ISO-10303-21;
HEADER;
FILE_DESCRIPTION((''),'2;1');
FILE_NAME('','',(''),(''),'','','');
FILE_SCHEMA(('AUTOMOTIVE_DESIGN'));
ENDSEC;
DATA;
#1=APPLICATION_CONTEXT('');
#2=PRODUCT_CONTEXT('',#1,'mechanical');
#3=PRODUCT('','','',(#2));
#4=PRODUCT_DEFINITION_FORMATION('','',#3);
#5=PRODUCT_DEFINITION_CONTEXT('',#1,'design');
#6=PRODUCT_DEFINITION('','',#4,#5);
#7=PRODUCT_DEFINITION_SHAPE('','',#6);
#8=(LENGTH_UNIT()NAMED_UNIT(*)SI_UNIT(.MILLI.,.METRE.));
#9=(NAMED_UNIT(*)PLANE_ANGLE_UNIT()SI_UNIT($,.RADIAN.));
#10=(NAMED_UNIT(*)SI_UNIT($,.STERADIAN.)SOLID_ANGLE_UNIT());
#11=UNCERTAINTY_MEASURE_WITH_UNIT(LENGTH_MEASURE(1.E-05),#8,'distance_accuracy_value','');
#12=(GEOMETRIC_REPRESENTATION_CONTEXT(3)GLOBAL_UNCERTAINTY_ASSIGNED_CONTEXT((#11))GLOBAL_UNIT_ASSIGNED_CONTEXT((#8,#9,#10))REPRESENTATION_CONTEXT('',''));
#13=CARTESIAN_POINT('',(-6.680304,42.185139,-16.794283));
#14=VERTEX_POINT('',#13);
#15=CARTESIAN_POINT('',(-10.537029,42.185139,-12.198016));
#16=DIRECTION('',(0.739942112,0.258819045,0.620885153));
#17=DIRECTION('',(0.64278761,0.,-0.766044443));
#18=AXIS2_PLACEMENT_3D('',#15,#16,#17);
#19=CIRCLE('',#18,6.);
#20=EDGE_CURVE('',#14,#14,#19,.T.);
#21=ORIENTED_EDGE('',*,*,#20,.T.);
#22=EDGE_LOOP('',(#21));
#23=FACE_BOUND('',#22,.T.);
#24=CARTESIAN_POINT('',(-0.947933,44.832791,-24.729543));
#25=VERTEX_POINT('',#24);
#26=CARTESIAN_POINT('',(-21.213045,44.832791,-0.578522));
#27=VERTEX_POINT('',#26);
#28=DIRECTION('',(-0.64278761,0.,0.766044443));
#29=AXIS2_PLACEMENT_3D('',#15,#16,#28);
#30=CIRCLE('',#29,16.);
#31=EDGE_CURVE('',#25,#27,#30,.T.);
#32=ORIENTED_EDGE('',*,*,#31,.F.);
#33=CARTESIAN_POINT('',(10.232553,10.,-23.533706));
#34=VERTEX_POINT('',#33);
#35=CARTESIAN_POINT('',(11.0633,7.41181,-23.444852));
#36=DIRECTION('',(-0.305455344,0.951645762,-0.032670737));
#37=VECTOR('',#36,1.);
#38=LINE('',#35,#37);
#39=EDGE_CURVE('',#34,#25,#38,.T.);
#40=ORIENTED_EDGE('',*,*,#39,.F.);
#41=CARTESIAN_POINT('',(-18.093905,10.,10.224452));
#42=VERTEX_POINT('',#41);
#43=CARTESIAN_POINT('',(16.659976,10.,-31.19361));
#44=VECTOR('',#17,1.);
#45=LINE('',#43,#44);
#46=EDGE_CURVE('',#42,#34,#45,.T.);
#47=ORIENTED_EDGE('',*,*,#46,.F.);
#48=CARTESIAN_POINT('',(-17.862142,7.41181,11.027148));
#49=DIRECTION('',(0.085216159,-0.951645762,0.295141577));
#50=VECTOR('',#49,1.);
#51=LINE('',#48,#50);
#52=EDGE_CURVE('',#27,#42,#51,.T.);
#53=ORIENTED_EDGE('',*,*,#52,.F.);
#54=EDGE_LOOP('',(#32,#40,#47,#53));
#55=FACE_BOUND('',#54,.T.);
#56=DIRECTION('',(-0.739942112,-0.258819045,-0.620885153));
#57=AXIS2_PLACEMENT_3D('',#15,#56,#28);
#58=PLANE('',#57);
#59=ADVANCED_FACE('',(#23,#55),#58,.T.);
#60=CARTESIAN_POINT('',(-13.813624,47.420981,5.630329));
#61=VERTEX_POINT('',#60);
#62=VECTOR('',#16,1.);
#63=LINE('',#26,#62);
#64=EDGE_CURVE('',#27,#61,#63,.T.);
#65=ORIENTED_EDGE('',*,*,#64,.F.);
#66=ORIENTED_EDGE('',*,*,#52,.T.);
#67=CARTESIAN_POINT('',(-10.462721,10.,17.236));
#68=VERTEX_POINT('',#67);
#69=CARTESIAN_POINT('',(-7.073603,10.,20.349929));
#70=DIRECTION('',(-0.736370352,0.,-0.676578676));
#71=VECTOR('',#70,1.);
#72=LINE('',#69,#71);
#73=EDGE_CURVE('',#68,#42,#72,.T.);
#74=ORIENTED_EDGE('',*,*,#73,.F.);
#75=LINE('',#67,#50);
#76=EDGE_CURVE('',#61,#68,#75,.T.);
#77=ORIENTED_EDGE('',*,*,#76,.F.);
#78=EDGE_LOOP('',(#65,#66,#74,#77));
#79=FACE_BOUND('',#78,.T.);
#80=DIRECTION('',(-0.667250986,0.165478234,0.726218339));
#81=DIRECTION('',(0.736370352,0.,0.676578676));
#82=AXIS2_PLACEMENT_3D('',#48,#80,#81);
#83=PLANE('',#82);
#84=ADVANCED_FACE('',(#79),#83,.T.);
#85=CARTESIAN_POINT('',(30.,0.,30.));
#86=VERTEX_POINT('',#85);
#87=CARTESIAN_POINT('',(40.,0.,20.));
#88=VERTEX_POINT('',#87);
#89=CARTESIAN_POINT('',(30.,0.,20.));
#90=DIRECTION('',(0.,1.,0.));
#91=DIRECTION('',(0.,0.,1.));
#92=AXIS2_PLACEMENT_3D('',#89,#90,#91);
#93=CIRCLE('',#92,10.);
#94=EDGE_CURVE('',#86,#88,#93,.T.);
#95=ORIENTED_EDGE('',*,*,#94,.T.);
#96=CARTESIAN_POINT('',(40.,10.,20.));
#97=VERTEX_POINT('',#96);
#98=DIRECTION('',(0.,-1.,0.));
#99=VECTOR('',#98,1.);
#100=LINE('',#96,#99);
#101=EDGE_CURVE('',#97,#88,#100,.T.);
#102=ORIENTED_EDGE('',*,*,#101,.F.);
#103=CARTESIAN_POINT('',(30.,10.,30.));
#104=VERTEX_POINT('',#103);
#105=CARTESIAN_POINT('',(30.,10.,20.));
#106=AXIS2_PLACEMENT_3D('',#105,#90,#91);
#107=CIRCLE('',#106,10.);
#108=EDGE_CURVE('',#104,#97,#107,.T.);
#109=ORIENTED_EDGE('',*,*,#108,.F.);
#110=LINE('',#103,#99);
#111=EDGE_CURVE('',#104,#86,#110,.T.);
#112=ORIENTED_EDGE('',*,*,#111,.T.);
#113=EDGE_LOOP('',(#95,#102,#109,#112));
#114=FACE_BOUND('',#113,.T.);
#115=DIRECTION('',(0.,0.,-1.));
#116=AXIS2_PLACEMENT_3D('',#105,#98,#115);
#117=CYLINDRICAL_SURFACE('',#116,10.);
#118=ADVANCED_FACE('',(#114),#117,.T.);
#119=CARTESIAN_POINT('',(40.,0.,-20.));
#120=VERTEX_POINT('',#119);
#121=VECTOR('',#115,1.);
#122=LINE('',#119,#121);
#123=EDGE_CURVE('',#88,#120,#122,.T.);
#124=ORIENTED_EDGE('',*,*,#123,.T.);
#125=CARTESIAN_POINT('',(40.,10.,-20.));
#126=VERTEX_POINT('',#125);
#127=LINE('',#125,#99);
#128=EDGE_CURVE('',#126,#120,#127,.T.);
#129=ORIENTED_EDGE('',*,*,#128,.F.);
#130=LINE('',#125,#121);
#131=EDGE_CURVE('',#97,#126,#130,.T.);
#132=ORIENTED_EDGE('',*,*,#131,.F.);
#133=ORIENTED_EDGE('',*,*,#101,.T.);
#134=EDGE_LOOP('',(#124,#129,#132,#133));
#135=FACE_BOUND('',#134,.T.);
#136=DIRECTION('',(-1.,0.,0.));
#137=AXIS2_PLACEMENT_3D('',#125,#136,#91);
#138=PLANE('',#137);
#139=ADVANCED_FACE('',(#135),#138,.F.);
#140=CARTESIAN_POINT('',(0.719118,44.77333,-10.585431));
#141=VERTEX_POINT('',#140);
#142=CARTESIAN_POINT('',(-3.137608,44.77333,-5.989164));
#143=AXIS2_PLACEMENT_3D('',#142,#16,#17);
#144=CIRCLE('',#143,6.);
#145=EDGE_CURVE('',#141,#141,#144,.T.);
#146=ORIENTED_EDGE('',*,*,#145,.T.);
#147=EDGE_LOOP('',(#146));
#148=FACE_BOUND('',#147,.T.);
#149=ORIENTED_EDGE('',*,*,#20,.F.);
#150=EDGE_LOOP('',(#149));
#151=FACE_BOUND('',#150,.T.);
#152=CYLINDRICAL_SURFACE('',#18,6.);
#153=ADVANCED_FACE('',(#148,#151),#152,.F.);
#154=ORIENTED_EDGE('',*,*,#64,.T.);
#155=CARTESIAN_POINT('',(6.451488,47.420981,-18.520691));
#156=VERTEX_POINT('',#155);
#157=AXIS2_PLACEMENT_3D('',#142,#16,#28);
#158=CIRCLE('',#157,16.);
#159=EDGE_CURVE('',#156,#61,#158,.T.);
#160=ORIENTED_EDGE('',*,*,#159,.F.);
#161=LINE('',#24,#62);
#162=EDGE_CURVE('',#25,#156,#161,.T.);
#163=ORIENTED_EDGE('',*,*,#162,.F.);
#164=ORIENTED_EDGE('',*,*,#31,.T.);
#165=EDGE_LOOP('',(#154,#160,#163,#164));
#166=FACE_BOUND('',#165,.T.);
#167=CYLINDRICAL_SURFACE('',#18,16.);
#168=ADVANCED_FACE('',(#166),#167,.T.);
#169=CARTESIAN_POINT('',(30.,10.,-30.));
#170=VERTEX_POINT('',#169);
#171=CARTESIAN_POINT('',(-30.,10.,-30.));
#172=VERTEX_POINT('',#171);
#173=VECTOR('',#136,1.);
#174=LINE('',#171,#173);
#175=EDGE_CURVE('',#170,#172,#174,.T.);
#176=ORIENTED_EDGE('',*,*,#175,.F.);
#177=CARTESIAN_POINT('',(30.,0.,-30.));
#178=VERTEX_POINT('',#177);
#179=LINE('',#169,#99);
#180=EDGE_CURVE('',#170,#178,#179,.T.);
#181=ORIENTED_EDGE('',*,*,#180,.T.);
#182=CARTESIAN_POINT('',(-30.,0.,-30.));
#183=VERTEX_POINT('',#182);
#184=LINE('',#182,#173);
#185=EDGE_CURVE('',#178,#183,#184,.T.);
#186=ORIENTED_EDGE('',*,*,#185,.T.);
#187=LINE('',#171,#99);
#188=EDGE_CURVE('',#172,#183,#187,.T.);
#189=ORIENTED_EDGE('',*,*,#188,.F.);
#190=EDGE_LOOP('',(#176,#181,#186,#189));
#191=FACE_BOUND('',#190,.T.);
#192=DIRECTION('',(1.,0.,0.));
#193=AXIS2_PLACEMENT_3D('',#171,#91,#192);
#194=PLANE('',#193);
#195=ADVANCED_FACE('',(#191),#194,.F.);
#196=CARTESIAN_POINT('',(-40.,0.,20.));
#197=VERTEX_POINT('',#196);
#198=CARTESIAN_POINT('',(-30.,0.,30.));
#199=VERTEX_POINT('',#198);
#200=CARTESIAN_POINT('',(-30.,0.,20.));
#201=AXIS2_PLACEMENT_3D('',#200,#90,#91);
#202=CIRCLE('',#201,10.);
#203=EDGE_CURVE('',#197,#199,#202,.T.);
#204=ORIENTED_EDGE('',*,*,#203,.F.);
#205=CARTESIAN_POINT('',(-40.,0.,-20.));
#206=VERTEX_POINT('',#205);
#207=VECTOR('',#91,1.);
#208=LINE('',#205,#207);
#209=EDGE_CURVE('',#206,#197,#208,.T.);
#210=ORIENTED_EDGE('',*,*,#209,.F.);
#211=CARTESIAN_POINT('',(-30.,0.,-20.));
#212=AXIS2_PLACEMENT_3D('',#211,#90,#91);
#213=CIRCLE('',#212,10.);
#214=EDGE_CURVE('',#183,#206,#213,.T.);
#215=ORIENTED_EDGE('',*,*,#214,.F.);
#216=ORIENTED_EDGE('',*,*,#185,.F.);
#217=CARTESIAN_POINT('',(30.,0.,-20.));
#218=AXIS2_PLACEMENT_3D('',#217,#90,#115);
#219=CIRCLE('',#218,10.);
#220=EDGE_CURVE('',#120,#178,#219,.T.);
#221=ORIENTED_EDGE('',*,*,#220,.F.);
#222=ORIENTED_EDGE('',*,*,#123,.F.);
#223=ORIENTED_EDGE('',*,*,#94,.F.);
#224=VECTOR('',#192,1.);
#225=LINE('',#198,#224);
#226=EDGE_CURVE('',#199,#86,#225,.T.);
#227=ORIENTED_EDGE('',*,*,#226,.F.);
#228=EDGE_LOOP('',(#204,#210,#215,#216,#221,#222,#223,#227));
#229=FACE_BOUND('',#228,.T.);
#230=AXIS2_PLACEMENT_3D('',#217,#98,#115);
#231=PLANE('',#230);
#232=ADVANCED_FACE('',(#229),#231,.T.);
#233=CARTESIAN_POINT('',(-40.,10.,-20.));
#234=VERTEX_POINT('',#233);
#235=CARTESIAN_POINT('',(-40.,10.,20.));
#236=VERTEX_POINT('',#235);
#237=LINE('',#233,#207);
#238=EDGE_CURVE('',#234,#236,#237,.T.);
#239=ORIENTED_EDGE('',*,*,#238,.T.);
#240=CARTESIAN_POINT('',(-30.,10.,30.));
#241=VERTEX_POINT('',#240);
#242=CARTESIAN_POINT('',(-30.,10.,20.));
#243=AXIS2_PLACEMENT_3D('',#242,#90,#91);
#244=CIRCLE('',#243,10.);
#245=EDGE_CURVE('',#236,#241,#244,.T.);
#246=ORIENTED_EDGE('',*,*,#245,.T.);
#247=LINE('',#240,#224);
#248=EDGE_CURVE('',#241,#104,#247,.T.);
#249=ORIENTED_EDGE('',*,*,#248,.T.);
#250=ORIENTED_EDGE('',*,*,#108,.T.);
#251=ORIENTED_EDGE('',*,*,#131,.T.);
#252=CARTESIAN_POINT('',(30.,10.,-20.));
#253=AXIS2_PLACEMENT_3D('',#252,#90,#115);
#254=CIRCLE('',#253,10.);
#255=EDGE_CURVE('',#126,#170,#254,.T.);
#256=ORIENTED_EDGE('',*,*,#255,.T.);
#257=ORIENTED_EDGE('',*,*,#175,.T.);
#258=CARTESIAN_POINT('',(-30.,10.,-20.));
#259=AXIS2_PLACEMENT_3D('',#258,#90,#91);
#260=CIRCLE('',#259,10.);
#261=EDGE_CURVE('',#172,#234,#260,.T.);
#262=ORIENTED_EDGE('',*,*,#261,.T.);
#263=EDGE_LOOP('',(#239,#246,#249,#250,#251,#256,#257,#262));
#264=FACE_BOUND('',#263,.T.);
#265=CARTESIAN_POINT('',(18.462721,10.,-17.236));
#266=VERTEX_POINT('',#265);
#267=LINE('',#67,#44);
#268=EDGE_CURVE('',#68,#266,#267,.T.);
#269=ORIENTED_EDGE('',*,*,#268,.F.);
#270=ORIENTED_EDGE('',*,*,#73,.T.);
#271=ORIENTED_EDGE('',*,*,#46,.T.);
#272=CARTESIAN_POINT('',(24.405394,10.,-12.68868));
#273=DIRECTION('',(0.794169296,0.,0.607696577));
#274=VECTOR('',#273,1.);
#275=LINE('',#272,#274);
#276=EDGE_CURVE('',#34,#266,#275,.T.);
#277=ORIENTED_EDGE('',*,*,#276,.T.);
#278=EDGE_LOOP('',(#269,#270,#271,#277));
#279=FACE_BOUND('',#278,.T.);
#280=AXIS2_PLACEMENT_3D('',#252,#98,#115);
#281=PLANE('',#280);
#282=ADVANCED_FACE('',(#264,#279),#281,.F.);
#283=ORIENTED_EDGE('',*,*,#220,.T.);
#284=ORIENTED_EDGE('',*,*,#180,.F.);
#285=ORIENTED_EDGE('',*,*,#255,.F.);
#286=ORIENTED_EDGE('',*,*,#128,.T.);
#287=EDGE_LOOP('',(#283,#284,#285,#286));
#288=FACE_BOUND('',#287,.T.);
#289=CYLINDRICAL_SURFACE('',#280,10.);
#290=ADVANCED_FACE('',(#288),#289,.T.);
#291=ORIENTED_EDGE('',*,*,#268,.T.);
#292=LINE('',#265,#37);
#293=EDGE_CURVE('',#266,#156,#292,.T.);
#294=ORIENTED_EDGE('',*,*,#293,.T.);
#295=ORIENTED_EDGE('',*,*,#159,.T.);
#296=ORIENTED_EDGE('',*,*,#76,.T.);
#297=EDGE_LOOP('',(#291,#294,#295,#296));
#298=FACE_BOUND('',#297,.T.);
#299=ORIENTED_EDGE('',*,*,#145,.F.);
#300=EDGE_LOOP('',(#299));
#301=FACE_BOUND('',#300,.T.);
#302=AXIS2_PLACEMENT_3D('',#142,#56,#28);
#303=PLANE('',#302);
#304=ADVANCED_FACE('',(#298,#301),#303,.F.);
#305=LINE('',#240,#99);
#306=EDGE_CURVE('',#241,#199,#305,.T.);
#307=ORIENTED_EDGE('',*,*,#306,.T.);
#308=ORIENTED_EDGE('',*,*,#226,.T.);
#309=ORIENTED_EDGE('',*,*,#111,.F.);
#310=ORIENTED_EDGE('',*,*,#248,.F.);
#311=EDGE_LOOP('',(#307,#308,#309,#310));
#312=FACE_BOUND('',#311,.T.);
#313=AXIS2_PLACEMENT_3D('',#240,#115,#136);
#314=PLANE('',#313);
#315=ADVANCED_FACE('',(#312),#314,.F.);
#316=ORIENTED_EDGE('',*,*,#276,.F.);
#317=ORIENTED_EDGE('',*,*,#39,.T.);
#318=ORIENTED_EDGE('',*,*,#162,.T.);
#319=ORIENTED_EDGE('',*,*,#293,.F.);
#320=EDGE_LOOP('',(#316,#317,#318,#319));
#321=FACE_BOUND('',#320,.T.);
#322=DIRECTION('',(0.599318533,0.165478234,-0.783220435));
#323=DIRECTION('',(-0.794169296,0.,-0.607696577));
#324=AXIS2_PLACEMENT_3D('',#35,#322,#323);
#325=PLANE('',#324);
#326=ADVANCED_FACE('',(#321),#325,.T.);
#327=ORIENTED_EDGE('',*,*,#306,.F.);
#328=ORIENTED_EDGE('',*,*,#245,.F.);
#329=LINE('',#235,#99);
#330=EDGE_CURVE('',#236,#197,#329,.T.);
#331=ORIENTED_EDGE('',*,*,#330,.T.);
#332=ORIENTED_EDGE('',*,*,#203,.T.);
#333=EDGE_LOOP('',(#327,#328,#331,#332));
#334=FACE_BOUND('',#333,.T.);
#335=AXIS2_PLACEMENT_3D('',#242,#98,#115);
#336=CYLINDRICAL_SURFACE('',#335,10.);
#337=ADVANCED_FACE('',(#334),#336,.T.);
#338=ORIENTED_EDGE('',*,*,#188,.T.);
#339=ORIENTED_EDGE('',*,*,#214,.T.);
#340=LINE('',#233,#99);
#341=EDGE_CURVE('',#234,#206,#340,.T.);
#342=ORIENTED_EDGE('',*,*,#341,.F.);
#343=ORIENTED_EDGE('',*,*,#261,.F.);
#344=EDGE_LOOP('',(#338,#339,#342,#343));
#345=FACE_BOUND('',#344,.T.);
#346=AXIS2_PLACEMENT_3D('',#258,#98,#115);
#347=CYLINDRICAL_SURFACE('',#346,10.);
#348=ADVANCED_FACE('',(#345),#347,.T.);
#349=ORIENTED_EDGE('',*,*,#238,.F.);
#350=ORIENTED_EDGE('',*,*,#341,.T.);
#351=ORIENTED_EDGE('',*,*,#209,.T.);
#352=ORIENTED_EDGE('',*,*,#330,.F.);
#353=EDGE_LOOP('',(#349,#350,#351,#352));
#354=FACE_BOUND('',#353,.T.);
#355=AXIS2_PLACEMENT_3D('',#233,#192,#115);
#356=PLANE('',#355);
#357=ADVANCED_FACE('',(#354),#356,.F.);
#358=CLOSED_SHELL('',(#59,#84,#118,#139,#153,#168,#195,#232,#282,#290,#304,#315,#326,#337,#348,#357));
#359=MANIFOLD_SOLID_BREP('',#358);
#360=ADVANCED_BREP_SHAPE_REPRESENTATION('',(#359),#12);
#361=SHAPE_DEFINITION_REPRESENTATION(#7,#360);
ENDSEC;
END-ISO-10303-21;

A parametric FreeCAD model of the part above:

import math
import FreeCAD as App
import Part
import Sketcher

doc = App.newDocument("Part")
params = doc.addObject("Spreadsheet::Sheet", "Params")
for row, (alias, value) in enumerate([
    ("sketch1_radius", "10 mm"),
    ("sketch1_width", "60 mm"),
    ("sketch1_height", "40 mm"),
    ("pad1_length", "10 mm"),
    ("sketch2_diameter", "12 mm"),
    ("sketch2_radius", "16 mm"),
    ("sketch2_width", "45 mm"),
    ("pad2_length", "10 mm"),
], start=1):
    params.set(f"A{row}", alias)
    params.set(f"B{row}", "=" + value)
    params.setAlias(f"B{row}", alias)

body = doc.addObject("PartDesign::Body", "Body")

sketch1 = body.newObject("Sketcher::SketchObject", "Sketch")
sketch1.AttachmentSupport = (doc.getObject("XZ_Plane"), [""])
sketch1.MapMode = "FlatFace"
sketch1.addGeometry([
    Part.LineSegment(App.Vector(30, -30, 0), App.Vector(-30, -30, 0)),
    Part.ArcOfCircle(Part.Circle(App.Vector(-30, -20, 0), App.Vector(0, 0, 1), 10), math.radians(180), math.radians(270)),
    Part.LineSegment(App.Vector(-40, -20, 0), App.Vector(-40, 20, 0)),
    Part.ArcOfCircle(Part.Circle(App.Vector(-30, 20, 0), App.Vector(0, 0, 1), 10), math.radians(90), math.radians(180)),
    Part.LineSegment(App.Vector(-30, 30, 0), App.Vector(30, 30, 0)),
    Part.ArcOfCircle(Part.Circle(App.Vector(30, 20, 0), App.Vector(0, 0, 1), 10), math.radians(0), math.radians(90)),
    Part.LineSegment(App.Vector(40, 20, 0), App.Vector(40, -20, 0)),
    Part.ArcOfCircle(Part.Circle(App.Vector(30, -20, 0), App.Vector(0, 0, 1), 10), math.radians(-90), math.radians(0)),
], False)
sketch1.addConstraint([
    Sketcher.Constraint("Tangent", 0, 2, 1, 2),
    Sketcher.Constraint("Tangent", 1, 1, 2, 1),
    Sketcher.Constraint("Tangent", 2, 2, 3, 2),
    Sketcher.Constraint("Tangent", 3, 1, 4, 1),
    Sketcher.Constraint("Tangent", 4, 2, 5, 2),
    Sketcher.Constraint("Tangent", 5, 1, 6, 1),
    Sketcher.Constraint("Tangent", 6, 2, 7, 2),
    Sketcher.Constraint("Tangent", 7, 1, 0, 1),
    Sketcher.Constraint("Horizontal", 0),
    Sketcher.Constraint("Vertical", 2),
    Sketcher.Constraint("Horizontal", 4),
    Sketcher.Constraint("Vertical", 6),
    Sketcher.Constraint("Equal", 1, 3),
    Sketcher.Constraint("Equal", 3, 5),
    Sketcher.Constraint("Equal", 5, 7),
    Sketcher.Constraint("Symmetric", 1, 3, 5, 3, -1, 1),
    Sketcher.Constraint("Radius", 1, 10.0),
    Sketcher.Constraint("DistanceX", 0, 2, 0, 1, 60.0),
    Sketcher.Constraint("DistanceY", 2, 1, 2, 2, 40.0),
])
sketch1.setExpression("Constraints[16]", "Params.sketch1_radius")
sketch1.setExpression("Constraints[17]", "Params.sketch1_width")
sketch1.setExpression("Constraints[18]", "Params.sketch1_height")
pad1 = body.newObject("PartDesign::Pad", "Pad")
pad1.Profile = sketch1
pad1.setExpression("Length", "Params.pad1_length")
pad1.Reversed = True

sketch2 = body.newObject("Sketcher::SketchObject", "Sketch001")
sketch2.Placement = App.Placement(App.Vector(4.105168, 1.435917, 3.444645), App.Rotation(App.Vector(0.64278761, 0, -0.766044443), App.Vector(-0.198266891, 0.965925827, -0.166365675), App.Vector(0.739942112, 0.258819045, 0.620885153), "ZXY"))
sketch2.addGeometry([
    Part.LineSegment(App.Vector(-20, 9, 0), App.Vector(25, 9, 0)),
    Part.LineSegment(App.Vector(25, 9, 0), App.Vector(18, 48, 0)),
    Part.ArcOfCircle(Part.Circle(App.Vector(3, 45, 0), App.Vector(0, 0, 1), 16), math.radians(10), math.radians(170)),
    Part.LineSegment(App.Vector(-13, 48, 0), App.Vector(-20, 9, 0)),
    Part.Circle(App.Vector(3, 45, 0), App.Vector(0, 0, 1), 6),
], False)
sketch2.addConstraint([
    Sketcher.Constraint("Coincident", 0, 2, 1, 1),
    Sketcher.Constraint("Tangent", 1, 2, 2, 1),
    Sketcher.Constraint("Tangent", 2, 2, 3, 1),
    Sketcher.Constraint("Coincident", 3, 2, 0, 1),
    Sketcher.Constraint("Horizontal", 0),
    Sketcher.Constraint("Coincident", 4, 3, 2, 3),
    Sketcher.Constraint("Horizontal", 1, 2, 2, 2),
    Sketcher.Constraint("Diameter", 4, 12.0),
    Sketcher.Constraint("Radius", 2, 16.0),
    Sketcher.Constraint("DistanceX", 0, 1, 0, 2, 45.0),
    Sketcher.Constraint("DistanceY", 0, 2, 4, 3, 36.0),
    Sketcher.Constraint("DistanceX", -1, 1, 2, 3, 2.57115),
    Sketcher.Constraint("DistanceY", -1, 1, 2, 3, 44.866191),
])
sketch2.setExpression("Constraints[7]", "Params.sketch2_diameter")
sketch2.setExpression("Constraints[8]", "Params.sketch2_radius")
sketch2.setExpression("Constraints[9]", "Params.sketch2_width")
pad2 = body.newObject("PartDesign::Pad", "Pad001")
pad2.Profile = sketch2
pad2.setExpression("Length", "Params.pad2_length")
pad2.Reversed = True

doc.recompute()
